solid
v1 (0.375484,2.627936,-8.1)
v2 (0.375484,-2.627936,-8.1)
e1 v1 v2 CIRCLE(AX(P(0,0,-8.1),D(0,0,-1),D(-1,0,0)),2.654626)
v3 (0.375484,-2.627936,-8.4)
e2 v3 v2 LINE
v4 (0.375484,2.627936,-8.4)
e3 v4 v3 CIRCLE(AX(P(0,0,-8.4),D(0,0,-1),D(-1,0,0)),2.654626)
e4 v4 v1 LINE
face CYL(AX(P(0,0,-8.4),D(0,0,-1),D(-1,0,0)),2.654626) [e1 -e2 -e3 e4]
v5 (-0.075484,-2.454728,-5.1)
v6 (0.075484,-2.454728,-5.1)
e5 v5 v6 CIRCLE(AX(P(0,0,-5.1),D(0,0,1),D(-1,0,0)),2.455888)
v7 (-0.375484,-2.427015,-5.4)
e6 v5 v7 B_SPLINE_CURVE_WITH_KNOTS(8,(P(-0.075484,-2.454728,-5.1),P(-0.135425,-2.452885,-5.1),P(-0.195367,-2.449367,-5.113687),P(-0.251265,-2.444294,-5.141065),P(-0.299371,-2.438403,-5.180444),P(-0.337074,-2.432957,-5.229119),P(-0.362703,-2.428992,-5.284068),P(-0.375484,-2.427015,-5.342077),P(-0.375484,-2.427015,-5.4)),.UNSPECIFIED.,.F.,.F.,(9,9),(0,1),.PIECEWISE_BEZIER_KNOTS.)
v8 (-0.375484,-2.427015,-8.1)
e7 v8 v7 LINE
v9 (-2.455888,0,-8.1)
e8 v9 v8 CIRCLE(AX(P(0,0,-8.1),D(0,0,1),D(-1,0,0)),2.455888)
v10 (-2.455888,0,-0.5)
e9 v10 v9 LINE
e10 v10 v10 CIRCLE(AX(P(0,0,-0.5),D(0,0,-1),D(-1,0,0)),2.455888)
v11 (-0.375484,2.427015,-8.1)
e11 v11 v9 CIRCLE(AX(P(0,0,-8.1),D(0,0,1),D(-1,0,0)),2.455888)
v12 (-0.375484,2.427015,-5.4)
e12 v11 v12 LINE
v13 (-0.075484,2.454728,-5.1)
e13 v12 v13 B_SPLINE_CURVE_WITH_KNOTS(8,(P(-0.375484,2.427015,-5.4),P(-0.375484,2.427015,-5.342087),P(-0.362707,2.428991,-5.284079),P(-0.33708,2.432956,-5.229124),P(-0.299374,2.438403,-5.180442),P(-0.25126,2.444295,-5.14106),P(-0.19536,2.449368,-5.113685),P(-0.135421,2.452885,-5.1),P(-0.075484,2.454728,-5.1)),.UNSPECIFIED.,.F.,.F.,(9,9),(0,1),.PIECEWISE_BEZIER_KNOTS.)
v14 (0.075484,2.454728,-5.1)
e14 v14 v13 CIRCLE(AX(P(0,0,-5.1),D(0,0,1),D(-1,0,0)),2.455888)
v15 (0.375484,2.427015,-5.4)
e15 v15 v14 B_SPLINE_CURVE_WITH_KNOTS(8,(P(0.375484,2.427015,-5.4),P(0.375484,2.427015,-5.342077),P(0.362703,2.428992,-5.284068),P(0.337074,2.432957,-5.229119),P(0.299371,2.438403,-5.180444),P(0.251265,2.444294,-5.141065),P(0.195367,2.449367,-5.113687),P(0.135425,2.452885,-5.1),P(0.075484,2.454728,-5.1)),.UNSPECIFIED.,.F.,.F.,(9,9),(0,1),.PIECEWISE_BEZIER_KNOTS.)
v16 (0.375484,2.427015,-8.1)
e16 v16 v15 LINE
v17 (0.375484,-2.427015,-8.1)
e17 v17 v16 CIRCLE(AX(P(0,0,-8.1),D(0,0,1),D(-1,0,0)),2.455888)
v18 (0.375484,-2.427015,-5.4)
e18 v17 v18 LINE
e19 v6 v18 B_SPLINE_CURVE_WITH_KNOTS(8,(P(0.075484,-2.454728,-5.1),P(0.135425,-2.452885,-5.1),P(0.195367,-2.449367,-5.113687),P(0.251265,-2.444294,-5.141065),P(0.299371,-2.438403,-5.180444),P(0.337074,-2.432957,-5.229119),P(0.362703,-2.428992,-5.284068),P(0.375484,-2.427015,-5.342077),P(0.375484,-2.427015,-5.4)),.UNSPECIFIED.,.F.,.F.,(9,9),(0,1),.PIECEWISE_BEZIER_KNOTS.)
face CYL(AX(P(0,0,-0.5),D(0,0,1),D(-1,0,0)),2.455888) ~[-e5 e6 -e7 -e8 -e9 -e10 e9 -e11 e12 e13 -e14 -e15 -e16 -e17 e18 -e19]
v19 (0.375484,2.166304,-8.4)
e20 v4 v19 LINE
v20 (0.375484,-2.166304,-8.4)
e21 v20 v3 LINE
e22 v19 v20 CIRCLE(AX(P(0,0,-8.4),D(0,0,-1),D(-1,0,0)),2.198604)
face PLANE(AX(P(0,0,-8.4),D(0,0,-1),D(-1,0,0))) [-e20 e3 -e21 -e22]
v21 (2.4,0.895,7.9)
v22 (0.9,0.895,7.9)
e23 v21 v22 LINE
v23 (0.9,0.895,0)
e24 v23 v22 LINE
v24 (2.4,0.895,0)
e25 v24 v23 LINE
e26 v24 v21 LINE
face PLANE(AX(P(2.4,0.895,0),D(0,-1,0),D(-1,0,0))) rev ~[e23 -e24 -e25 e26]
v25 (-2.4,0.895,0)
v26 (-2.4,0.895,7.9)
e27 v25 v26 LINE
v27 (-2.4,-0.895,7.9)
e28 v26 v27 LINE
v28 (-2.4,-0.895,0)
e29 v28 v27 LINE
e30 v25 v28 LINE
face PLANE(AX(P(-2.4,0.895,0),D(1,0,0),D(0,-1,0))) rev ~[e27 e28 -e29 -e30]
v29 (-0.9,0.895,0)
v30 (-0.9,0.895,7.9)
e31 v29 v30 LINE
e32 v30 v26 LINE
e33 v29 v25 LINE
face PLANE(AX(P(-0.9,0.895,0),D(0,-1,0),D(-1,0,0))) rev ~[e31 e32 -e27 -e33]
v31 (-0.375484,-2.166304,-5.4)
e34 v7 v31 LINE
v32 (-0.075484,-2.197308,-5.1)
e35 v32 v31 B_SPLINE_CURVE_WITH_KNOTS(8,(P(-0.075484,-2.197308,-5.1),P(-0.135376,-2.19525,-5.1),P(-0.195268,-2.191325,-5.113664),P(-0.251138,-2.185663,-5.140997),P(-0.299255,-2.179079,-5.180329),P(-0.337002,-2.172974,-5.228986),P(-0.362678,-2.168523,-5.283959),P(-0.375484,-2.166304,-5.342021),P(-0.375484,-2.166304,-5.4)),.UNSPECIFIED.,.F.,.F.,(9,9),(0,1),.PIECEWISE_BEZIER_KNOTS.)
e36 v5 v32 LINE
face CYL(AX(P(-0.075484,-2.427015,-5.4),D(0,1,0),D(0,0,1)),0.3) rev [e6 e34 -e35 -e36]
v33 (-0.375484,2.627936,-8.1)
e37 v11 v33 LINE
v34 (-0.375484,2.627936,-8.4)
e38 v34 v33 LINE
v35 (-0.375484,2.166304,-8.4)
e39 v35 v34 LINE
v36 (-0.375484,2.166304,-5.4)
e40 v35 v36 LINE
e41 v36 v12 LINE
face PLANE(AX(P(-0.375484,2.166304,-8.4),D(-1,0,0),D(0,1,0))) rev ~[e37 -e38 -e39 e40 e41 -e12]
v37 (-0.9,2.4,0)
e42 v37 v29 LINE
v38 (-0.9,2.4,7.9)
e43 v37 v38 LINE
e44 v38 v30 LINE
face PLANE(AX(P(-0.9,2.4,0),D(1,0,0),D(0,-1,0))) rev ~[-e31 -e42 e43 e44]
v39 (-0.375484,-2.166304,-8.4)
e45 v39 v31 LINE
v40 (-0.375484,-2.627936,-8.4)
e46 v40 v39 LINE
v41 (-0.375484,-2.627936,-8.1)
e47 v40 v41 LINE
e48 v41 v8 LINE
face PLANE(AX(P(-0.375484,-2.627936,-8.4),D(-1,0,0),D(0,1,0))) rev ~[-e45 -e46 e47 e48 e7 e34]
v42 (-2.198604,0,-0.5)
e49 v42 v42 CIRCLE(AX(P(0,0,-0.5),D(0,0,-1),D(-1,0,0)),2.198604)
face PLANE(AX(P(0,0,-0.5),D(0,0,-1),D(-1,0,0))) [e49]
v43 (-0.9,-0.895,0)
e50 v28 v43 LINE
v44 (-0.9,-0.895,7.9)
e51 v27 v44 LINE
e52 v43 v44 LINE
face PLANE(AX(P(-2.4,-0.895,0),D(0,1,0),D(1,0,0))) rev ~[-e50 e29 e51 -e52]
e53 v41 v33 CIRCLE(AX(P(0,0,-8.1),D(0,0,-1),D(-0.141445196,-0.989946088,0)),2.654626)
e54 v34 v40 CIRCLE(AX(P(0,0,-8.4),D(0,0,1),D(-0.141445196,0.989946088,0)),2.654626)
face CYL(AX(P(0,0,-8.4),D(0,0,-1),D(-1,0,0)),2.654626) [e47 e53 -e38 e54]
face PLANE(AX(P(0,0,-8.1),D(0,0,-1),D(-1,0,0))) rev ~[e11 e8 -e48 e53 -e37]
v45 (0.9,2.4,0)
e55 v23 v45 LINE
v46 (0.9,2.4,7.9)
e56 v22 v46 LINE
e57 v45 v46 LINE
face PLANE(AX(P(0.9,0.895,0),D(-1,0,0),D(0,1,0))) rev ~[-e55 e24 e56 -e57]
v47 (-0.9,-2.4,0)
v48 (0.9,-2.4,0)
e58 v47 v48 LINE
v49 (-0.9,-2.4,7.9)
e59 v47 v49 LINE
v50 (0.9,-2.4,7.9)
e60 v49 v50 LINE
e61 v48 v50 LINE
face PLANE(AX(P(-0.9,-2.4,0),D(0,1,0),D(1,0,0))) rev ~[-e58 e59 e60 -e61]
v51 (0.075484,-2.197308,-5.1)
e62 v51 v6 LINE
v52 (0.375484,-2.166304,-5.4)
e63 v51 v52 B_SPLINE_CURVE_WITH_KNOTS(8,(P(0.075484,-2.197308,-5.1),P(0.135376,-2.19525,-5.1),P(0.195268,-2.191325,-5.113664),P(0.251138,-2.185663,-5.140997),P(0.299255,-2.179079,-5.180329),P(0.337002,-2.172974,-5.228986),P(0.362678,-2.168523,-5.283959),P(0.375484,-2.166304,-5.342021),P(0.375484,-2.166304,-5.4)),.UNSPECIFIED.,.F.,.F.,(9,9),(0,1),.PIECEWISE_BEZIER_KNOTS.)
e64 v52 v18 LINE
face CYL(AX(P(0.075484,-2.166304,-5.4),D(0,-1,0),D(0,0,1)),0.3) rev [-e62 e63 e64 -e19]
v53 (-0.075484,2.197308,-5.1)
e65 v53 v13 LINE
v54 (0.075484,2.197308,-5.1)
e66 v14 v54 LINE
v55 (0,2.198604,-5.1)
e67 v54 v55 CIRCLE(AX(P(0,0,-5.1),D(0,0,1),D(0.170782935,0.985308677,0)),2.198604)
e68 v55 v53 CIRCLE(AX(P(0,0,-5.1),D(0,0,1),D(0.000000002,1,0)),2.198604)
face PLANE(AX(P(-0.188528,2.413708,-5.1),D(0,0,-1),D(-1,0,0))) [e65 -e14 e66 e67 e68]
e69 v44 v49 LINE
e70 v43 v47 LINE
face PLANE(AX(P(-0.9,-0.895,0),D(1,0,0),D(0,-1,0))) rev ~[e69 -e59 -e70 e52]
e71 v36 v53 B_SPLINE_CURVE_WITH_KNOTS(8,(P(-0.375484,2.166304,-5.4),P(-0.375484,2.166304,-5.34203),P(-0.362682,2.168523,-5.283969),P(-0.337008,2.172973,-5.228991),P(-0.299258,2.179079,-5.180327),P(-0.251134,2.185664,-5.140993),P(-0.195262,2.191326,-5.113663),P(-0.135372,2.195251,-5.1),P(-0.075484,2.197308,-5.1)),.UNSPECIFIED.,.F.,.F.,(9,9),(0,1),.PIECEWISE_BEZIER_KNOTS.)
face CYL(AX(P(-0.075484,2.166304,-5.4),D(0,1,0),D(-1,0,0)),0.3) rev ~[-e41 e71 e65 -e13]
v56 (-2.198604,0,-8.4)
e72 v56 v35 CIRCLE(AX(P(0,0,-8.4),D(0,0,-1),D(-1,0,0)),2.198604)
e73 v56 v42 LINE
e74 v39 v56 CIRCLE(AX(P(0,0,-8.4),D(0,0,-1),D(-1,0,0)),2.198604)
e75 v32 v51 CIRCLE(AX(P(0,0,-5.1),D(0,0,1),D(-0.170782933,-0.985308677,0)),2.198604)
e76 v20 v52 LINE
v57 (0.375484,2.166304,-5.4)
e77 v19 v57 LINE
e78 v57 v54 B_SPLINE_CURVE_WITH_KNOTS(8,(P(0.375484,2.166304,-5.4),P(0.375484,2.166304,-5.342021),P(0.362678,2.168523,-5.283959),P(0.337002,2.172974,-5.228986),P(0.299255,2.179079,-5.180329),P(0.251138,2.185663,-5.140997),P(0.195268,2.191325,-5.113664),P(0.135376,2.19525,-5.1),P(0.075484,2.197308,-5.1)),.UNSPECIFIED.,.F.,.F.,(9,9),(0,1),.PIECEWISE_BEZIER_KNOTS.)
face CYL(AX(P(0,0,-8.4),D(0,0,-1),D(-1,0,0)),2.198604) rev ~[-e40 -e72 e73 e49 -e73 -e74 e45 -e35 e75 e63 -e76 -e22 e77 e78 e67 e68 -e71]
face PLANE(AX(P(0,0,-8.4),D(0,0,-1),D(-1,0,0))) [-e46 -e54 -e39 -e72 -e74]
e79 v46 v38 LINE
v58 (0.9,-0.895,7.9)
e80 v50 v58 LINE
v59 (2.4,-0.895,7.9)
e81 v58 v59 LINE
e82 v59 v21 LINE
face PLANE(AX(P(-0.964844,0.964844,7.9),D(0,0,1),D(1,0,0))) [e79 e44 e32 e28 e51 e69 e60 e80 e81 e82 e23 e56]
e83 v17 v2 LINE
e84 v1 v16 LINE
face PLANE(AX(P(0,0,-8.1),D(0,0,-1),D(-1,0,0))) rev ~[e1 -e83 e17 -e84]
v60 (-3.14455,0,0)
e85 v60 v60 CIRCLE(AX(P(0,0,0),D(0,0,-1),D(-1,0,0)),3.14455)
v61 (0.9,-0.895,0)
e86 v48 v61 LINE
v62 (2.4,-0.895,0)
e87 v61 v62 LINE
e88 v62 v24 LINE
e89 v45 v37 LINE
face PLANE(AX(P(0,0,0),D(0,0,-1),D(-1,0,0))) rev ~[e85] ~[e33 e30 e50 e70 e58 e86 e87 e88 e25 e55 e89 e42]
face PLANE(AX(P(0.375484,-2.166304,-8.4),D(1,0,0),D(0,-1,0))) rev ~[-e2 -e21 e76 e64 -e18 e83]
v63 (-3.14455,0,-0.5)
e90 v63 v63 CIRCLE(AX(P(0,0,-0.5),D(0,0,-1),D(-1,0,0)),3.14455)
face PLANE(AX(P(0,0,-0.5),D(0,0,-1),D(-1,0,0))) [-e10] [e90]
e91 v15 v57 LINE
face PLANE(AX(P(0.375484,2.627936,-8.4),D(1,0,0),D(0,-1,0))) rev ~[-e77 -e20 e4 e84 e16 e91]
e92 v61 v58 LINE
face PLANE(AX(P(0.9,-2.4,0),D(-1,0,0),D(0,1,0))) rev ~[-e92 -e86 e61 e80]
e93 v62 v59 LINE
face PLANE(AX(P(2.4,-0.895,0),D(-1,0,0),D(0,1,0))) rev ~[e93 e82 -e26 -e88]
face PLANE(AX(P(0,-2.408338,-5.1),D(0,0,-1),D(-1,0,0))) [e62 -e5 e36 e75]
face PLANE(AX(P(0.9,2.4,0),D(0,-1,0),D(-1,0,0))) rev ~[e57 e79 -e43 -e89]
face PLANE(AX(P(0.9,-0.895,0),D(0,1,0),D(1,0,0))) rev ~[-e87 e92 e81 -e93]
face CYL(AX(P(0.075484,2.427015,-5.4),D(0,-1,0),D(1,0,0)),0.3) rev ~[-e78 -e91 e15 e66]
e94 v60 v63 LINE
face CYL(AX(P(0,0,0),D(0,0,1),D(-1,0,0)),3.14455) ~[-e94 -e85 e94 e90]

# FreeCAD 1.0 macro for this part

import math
import FreeCAD as App
import Part
import Sketcher
from FreeCAD import Vector


def edges_at(feature, points):
    """Names of the edges that pass closest to the given points."""
    edges = feature.Shape.Edges
    near = lambda p: min(range(len(edges)), key=lambda i: edges[i].distToShape(Part.Vertex(*p))[0])
    return sorted({f"Edge{near(p) + 1}" for p in points})

doc = App.newDocument("Part")
params = doc.addObject("Spreadsheet::Sheet", "Params")
for row, (alias, value) in enumerate([
    ("sketch1_width", "1.5 mm"),
    ("sketch1_width2", "1.8 mm"),
    ("sketch1_height", "1.79 mm"),
    ("pad1_length", "7.9 mm"),
    ("pad2_length", "0.5 mm"),
    ("pad3_length", "7.9 mm"),
    ("pad4_length", "0.3 mm"),
    ("pocket1_length", "7.9 mm"),
    ("pocket2_length", "3.3 mm"),
    ("fillet_radius", "0.3 mm"),
], start=1):
    params.set(f"A{row}", alias)
    params.set(f"B{row}", "=" + value)
    params.setAlias(f"B{row}", alias)

body = doc.addObject("PartDesign::Body", "Body")

sketch1 = body.newObject("Sketcher::SketchObject", "Sketch")
sketch1.AttachmentSupport = (doc.getObject("XY_Plane"), [""])
sketch1.MapMode = "FlatFace"
sketch1.addGeometry(Part.LineSegment(Vector(-2.4, 0.9, 0), Vector(-2.4, -0.9, 0)), False)
sketch1.addGeometry(Part.LineSegment(Vector(-2.4, -0.9, 0), Vector(-0.9, -0.9, 0)), False)
sketch1.addGeometry(Part.LineSegment(Vector(-0.9, -0.9, 0), Vector(-0.9, -2.4, 0)), False)
sketch1.addGeometry(Part.LineSegment(Vector(-0.9, -2.4, 0), Vector(0.9, -2.4, 0)), False)
sketch1.addGeometry(Part.LineSegment(Vector(0.9, -2.4, 0), Vector(0.9, -0.9, 0)), False)
sketch1.addGeometry(Part.LineSegment(Vector(0.9, -0.9, 0), Vector(2.4, -0.9, 0)), False)
sketch1.addGeometry(Part.LineSegment(Vector(2.4, -0.9, 0), Vector(2.4, 0.9, 0)), False)
sketch1.addGeometry(Part.LineSegment(Vector(2.4, 0.9, 0), Vector(0.9, 0.9, 0)), False)
sketch1.addGeometry(Part.LineSegment(Vector(0.9, 0.9, 0), Vector(0.9, 2.4, 0)), False)
sketch1.addGeometry(Part.LineSegment(Vector(0.9, 2.4, 0), Vector(-0.9, 2.4, 0)), False)
sketch1.addGeometry(Part.LineSegment(Vector(-0.9, 2.4, 0), Vector(-0.9, 0.9, 0)), False)
sketch1.addGeometry(Part.LineSegment(Vector(-0.9, 0.9, 0), Vector(-2.4, 0.9, 0)), False)
sketch1.addConstraint(Sketcher.Constraint("Coincident", 0, 2, 1, 1))
sketch1.addConstraint(Sketcher.Constraint("Coincident", 1, 2, 2, 1))
sketch1.addConstraint(Sketcher.Constraint("Coincident", 2, 2, 3, 1))
sketch1.addConstraint(Sketcher.Constraint("Coincident", 3, 2, 4, 1))
sketch1.addConstraint(Sketcher.Constraint("Coincident", 4, 2, 5, 1))
sketch1.addConstraint(Sketcher.Constraint("Coincident", 5, 2, 6, 1))
sketch1.addConstraint(Sketcher.Constraint("Coincident", 6, 2, 7, 1))
sketch1.addConstraint(Sketcher.Constraint("Coincident", 7, 2, 8, 1))
sketch1.addConstraint(Sketcher.Constraint("Coincident", 8, 2, 9, 1))
sketch1.addConstraint(Sketcher.Constraint("Coincident", 9, 2, 10, 1))
sketch1.addConstraint(Sketcher.Constraint("Coincident", 10, 2, 11, 1))
sketch1.addConstraint(Sketcher.Constraint("Coincident", 11, 2, 0, 1))
sketch1.addConstraint(Sketcher.Constraint("Vertical", 0))
sketch1.addConstraint(Sketcher.Constraint("Horizontal", 1))
sketch1.addConstraint(Sketcher.Constraint("Vertical", 2))
sketch1.addConstraint(Sketcher.Constraint("Horizontal", 3))
sketch1.addConstraint(Sketcher.Constraint("Vertical", 4))
sketch1.addConstraint(Sketcher.Constraint("Horizontal", 5))
sketch1.addConstraint(Sketcher.Constraint("Vertical", 6))
sketch1.addConstraint(Sketcher.Constraint("Horizontal", 7))
sketch1.addConstraint(Sketcher.Constraint("Vertical", 8))
sketch1.addConstraint(Sketcher.Constraint("Horizontal", 9))
sketch1.addConstraint(Sketcher.Constraint("Vertical", 10))
sketch1.addConstraint(Sketcher.Constraint("Horizontal", 11))
sketch1.addConstraint(Sketcher.Constraint("Symmetric", 0, 2, 6, 2, -1, 1))
sketch1.addConstraint(Sketcher.Constraint("Symmetric", 2, 2, 8, 2, -1, 1))
sketch1.addConstraint(Sketcher.Constraint("Symmetric", 4, 2, 10, 2, -1, 1))
sketch1.addConstraint(Sketcher.Constraint("Symmetric", 1, 2, 4, 2, -2))
sketch1.addConstraint(Sketcher.Constraint("DistanceX", 1, 1, 1, 2, 1.5))
sketch1.addConstraint(Sketcher.Constraint("DistanceX", 3, 1, 3, 2, 1.8))
sketch1.addConstraint(Sketcher.Constraint("DistanceY", 0, 2, 0, 1, 1.79))
sketch1.addConstraint(Sketcher.Constraint("DistanceY", 2, 2, -1, 1, 2.4))
sketch1.setExpression("Constraints[28]", "Params.sketch1_width")
sketch1.setExpression("Constraints[29]", "Params.sketch1_width2")
sketch1.setExpression("Constraints[30]", "Params.sketch1_height")
pad1 = body.newObject("PartDesign::Pad", "Pad")
pad1.Profile = sketch1
pad1.setExpression("Length", "Params.pad1_length")

sketch2 = body.newObject("Sketcher::SketchObject", "Sketch001")
sketch2.AttachmentSupport = (doc.getObject("XY_Plane"), [""])
sketch2.MapMode = "FlatFace"
sketch2.addGeometry(Part.Circle(Vector(0, 0, 0), Vector(0, 0, 1), 3.1), False)
sketch2.addConstraint(Sketcher.Constraint("Coincident", 0, 3, -1, 1))
sketch2.addConstraint(Sketcher.Constraint("Diameter", 0, 6.2891))
pad2 = body.newObject("PartDesign::Pad", "Pad001")
pad2.Profile = sketch2
pad2.setExpression("Length", "Params.pad2_length")
pad2.Reversed = True

sketch3 = body.newObject("Sketcher::SketchObject", "Sketch002")
sketch3.AttachmentSupport = (doc.getObject("XY_Plane"), [""])
sketch3.MapMode = "FlatFace"
sketch3.AttachmentOffset = App.Placement(Vector(0, 0, -0.5), App.Rotation())
sketch3.addGeometry(Part.Circle(Vector(0, 0, 0), Vector(0, 0, 1), 2.5), False)
sketch3.addConstraint(Sketcher.Constraint("Coincident", 0, 3, -1, 1))
sketch3.addConstraint(Sketcher.Constraint("Diameter", 0, 4.911777))
pad3 = body.newObject("PartDesign::Pad", "Pad002")
pad3.Profile = sketch3
pad3.setExpression("Length", "Params.pad3_length")
pad3.Reversed = True

sketch4 = body.newObject("Sketcher::SketchObject", "Sketch003")
sketch4.AttachmentSupport = (doc.getObject("XY_Plane"), [""])
sketch4.MapMode = "FlatFace"
sketch4.AttachmentOffset = App.Placement(Vector(0, 0, -8.4), App.Rotation())
sketch4.addGeometry(Part.Circle(Vector(0, 0, 0), Vector(0, 0, 1), 2.7), False)
sketch4.addConstraint(Sketcher.Constraint("Coincident", 0, 3, -1, 1))
sketch4.addConstraint(Sketcher.Constraint("Diameter", 0, 5.309251))
pad4 = body.newObject("PartDesign::Pad", "Pad003")
pad4.Profile = sketch4
pad4.setExpression("Length", "Params.pad4_length")

sketch5 = body.newObject("Sketcher::SketchObject", "Sketch004")
sketch5.AttachmentSupport = (doc.getObject("XY_Plane"), [""])
sketch5.MapMode = "FlatFace"
sketch5.AttachmentOffset = App.Placement(Vector(0, 0, -8.4), App.Rotation())
sketch5.addGeometry(Part.Circle(Vector(0, 0, 0), Vector(0, 0, 1), 2.2), False)
sketch5.addConstraint(Sketcher.Constraint("Coincident", 0, 3, -1, 1))
sketch5.addConstraint(Sketcher.Constraint("Diameter", 0, 4.397208))
pocket1 = body.newObject("PartDesign::Pocket", "Pocket")
pocket1.Profile = sketch5
pocket1.setExpression("Length", "Params.pocket1_length")
pocket1.Reversed = True

sketch6 = body.newObject("Sketcher::SketchObject", "Sketch005")
sketch6.AttachmentSupport = (doc.getObject("XY_Plane"), [""])
sketch6.MapMode = "FlatFace"
sketch6.AttachmentOffset = App.Placement(Vector(0, 0, -8.4), App.Rotation())
sketch6.addGeometry(Part.LineSegment(Vector(-0.38, 2.17, 0), Vector(-0.38, 2.63, 0)), False)
sketch6.addGeometry(Part.ArcOfCircle(Part.Circle(Vector(0, 0, 0), Vector(0, 0, 1), 2.65), math.radians(90), math.radians(98.13)), False)
sketch6.addGeometry(Part.ArcOfCircle(Part.Circle(Vector(0, 0, 0), Vector(0, 0, 1), 2.65), math.radians(81.87), math.radians(90)), False)
sketch6.addGeometry(Part.LineSegment(Vector(0.38, 2.63, 0), Vector(0.38, 2.17, 0)), False)
sketch6.addGeometry(Part.ArcOfCircle(Part.Circle(Vector(0, 0, 0), Vector(0, 0, 1), 2.2), math.radians(80.17), math.radians(90)), False)
sketch6.addGeometry(Part.ArcOfCircle(Part.Circle(Vector(0, 0, 0), Vector(0, 0, 1), 2.2), math.radians(90), math.radians(99.83)), False)
sketch6.addGeometry(Part.ArcOfCircle(Part.Circle(Vector(0, 0, 0), Vector(0, 0, 1), 2.65), math.radians(-98.13), math.radians(-90)), False)
sketch6.addGeometry(Part.LineSegment(Vector(-0.38, -2.63, 0), Vector(-0.38, -2.17, 0)), False)
sketch6.addGeometry(Part.ArcOfCircle(Part.Circle(Vector(0, 0, 0), Vector(0, 0, 1), 2.2), math.radians(-99.83), math.radians(-80.17)), False)
sketch6.addGeometry(Part.LineSegment(Vector(0.38, -2.17, 0), Vector(0.38, -2.63, 0)), False)
sketch6.addGeometry(Part.ArcOfCircle(Part.Circle(Vector(0, 0, 0), Vector(0, 0, 1), 2.65), math.radians(-90), math.radians(-81.87)), False)
sketch6.addConstraint(Sketcher.Constraint("Coincident", 0, 2, 1, 2))
sketch6.addConstraint(Sketcher.Constraint("Tangent", 1, 1, 2, 2))
sketch6.addConstraint(Sketcher.Constraint("Coincident", 2, 1, 3, 1))
sketch6.addConstraint(Sketcher.Constraint("Coincident", 3, 2, 4, 1))
sketch6.addConstraint(Sketcher.Constraint("Tangent", 4, 2, 5, 1))
sketch6.addConstraint(Sketcher.Constraint("Coincident", 5, 2, 0, 1))
sketch6.addConstraint(Sketcher.Constraint("Coincident", 6, 1, 7, 1))
sketch6.addConstraint(Sketcher.Constraint("Coincident", 7, 2, 8, 1))
sketch6.addConstraint(Sketcher.Constraint("Coincident", 8, 2, 9, 1))
sketch6.addConstraint(Sketcher.Constraint("Coincident", 9, 2, 10, 2))
sketch6.addConstraint(Sketcher.Constraint("Tangent", 10, 1, 6, 2))
sketch6.addConstraint(Sketcher.Constraint("Vertical", 0))
sketch6.addConstraint(Sketcher.Constraint("Vertical", 3))
sketch6.addConstraint(Sketcher.Constraint("Vertical", 7))
sketch6.addConstraint(Sketcher.Constraint("Vertical", 9))
sketch6.addConstraint(Sketcher.Constraint("Coincident", 1, 3, -1, 1))
sketch6.addConstraint(Sketcher.Constraint("Coincident", 4, 3, -1, 1))
sketch6.addConstraint(Sketcher.Constraint("Coincident", 6, 3, -1, 1))
sketch6.addConstraint(Sketcher.Constraint("Coincident", 8, 3, -1, 1))
sketch6.addConstraint(Sketcher.Constraint("Equal", 1, 2))
sketch6.addConstraint(Sketcher.Constraint("Equal", 4, 5))
sketch6.addConstraint(Sketcher.Constraint("Equal", 2, 6))
sketch6.addConstraint(Sketcher.Constraint("Equal", 5, 8))
sketch6.addConstraint(Sketcher.Constraint("Equal", 6, 10))
sketch6.addConstraint(Sketcher.Constraint("PointOnObject", 1, 1, -2))
sketch6.addConstraint(Sketcher.Constraint("PointOnObject", 4, 2, -2))
sketch6.addConstraint(Sketcher.Constraint("PointOnObject", 10, 1, -2))
sketch6.addConstraint(Sketcher.Constraint("Horizontal", 0, 2, 2, 1))
sketch6.addConstraint(Sketcher.Constraint("Horizontal", 7, 2, 8, 2))
sketch6.addConstraint(Sketcher.Constraint("Vertical", 5, 2, 6, 1))
sketch6.addConstraint(Sketcher.Constraint("Radius", 1, 2.654626))
sketch6.addConstraint(Sketcher.Constraint("Radius", 4, 2.198604))
sketch6.addConstraint(Sketcher.Constraint("DistanceY", 3, 2, 4, 2, 0.0323))
pocket2 = body.newObject("PartDesign::Pocket", "Pocket001")
pocket2.Profile = sketch6
pocket2.setExpression("Length", "Params.pocket2_length")
pocket2.Reversed = True
doc.recompute()

fillet = body.newObject("PartDesign::Fillet", "Fillet")
fillet.Base = (pocket2, edges_at(pocket2, [
    (0.375, 2.297, -5.1),
    (-0.375, 2.297, -5.1),
    (-0.375, -2.297, -5.1),
    (0.375, -2.297, -5.1),
]))
fillet.setExpression("Radius", "Params.fillet_radius")

doc.recompute()
